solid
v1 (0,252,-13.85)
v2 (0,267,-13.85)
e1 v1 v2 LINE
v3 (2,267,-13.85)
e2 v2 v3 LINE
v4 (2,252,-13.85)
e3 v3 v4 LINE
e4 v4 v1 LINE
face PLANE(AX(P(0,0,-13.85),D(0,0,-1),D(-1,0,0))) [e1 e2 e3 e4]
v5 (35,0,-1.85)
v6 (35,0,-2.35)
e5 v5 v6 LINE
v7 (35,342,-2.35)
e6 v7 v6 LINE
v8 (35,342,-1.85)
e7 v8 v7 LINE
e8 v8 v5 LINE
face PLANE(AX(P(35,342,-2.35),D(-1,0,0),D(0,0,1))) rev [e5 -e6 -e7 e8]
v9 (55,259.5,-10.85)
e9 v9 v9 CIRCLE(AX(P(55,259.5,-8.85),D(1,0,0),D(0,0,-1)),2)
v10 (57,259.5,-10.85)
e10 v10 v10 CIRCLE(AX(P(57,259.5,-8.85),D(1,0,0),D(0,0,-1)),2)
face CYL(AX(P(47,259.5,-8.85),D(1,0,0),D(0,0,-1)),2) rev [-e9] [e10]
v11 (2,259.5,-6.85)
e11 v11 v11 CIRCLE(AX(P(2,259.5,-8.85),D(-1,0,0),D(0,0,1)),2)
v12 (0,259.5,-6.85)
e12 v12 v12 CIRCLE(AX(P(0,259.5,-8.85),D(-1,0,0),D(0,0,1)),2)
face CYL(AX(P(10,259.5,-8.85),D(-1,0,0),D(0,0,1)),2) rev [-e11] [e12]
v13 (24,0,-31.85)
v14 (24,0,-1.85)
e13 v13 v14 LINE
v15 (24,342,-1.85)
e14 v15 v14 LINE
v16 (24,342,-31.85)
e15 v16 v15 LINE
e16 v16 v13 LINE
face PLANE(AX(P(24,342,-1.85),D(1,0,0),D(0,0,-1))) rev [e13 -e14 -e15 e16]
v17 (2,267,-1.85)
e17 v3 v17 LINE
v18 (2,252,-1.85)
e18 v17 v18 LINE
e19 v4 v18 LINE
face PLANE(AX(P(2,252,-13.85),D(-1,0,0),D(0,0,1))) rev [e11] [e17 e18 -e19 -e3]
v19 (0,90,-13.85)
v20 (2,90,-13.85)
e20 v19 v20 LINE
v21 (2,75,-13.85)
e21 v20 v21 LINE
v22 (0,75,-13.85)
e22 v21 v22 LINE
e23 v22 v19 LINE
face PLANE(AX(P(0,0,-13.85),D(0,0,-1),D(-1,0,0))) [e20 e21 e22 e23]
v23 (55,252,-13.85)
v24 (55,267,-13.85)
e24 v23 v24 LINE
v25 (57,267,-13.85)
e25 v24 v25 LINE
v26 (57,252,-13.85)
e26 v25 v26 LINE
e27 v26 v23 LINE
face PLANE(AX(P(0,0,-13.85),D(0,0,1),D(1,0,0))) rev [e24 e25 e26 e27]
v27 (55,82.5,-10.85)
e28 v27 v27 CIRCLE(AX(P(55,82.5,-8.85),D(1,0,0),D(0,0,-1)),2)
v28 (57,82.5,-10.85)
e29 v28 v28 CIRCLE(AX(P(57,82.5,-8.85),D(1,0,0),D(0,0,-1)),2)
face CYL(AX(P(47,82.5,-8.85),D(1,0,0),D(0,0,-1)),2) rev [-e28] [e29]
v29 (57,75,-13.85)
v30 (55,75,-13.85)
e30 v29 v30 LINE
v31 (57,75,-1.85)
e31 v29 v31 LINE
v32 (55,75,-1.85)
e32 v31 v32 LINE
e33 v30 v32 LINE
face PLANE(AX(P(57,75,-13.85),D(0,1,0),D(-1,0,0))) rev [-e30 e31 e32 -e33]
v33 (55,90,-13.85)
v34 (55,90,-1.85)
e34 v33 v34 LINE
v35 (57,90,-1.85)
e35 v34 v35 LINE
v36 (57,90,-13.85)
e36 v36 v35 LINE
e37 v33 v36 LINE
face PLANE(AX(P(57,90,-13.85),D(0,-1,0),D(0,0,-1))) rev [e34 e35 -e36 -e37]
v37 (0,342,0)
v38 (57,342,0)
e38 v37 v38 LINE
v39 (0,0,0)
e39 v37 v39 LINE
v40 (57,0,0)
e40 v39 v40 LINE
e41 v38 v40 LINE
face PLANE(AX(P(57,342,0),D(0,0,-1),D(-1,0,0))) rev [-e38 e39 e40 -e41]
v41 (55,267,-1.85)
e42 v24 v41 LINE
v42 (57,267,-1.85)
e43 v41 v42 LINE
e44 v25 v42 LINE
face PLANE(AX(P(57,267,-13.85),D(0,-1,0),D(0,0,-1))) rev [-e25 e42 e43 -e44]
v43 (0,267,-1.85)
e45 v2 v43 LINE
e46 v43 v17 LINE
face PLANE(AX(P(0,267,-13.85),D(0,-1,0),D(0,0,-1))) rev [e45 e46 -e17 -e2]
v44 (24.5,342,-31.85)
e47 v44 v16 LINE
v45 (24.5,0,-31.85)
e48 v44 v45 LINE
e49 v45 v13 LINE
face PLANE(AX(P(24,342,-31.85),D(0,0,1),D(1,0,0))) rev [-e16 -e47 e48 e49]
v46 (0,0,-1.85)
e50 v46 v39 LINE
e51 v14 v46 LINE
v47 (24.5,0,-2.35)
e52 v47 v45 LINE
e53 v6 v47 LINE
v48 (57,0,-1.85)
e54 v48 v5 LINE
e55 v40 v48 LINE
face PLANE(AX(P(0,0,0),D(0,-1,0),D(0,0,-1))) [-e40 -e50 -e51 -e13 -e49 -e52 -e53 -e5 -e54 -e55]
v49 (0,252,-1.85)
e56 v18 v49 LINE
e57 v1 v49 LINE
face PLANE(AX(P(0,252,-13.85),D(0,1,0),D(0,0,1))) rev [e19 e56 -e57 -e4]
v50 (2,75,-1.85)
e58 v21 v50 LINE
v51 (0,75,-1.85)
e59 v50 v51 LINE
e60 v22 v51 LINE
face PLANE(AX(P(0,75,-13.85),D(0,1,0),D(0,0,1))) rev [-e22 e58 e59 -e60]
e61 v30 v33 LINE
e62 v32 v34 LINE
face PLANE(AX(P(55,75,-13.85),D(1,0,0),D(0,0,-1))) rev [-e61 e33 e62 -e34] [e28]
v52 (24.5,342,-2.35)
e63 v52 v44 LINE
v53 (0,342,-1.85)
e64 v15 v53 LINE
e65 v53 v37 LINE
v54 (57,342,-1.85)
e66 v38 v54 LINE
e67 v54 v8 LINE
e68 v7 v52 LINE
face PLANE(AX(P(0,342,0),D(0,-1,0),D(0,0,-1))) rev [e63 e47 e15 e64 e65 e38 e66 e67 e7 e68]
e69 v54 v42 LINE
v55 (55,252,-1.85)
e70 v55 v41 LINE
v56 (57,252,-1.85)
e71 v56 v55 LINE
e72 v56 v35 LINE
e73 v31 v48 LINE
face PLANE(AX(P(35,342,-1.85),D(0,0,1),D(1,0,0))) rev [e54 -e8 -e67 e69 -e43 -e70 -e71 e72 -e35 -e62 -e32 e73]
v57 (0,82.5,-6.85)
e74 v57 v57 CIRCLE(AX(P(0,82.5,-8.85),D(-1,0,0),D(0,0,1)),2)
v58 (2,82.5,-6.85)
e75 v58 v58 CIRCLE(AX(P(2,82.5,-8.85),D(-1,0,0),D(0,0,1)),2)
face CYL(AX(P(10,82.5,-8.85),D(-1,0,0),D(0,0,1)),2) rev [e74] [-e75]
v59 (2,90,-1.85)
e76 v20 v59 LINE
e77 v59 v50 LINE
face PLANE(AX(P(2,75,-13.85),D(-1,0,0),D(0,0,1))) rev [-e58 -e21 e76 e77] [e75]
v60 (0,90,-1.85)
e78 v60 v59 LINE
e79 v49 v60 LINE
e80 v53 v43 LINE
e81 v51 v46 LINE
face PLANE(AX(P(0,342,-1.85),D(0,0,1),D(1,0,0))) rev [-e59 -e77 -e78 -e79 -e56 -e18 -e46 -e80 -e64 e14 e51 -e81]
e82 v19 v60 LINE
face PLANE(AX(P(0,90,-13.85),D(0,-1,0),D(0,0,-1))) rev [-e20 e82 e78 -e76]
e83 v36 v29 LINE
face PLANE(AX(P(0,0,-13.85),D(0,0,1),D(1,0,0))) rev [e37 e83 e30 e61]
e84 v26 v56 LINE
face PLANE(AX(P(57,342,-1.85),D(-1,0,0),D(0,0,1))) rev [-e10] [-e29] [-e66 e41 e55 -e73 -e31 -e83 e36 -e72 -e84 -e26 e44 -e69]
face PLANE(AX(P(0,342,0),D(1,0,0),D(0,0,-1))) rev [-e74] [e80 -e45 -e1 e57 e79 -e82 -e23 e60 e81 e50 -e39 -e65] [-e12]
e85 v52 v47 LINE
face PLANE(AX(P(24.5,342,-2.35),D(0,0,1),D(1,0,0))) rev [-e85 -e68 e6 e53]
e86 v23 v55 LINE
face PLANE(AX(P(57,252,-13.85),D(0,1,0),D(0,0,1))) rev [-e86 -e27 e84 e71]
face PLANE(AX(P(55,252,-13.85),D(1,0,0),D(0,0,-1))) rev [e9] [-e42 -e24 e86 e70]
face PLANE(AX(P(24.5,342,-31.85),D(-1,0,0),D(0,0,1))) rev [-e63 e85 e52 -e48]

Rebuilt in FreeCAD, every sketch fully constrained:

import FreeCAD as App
import Part
import Sketcher

V = App.Vector
Q = App.Units.Quantity


def add_polygon(sketch, points):
    """Adds a closed chain of lines whose ends are joined by coincident constraints."""
    first, n = sketch.GeometryCount, len(points)
    for a, b in zip(points, points[1:] + points[:1]):
        sketch.addGeometry(Part.LineSegment(App.Vector(*a, 0), App.Vector(*b, 0)), False)
    for i in range(n):
        sketch.addConstraint(Sketcher.Constraint("Coincident", first + i, 2, first + (i + 1) % n, 1))

doc = App.newDocument("Part")
body = doc.addObject("PartDesign::Body", "Body")

# Sketch on XZ plane
sketch1 = body.newObject("Sketcher::SketchObject", "Sketch")
sketch1.AttachmentSupport = (doc.getObject("XZ_Plane"), [""])
sketch1.MapMode = "FlatFace"
add_polygon(sketch1, [(0, -1.9), (0, 0), (57, 0), (57, -1.9), (35, -1.9), (35, -2.4), (24.5, -2.4), (24.5, -31.9), (24, -31.9), (24, -1.9)])  # lines 0-9
sketch1.addConstraint([
    Sketcher.Constraint("Vertical", 0),
    Sketcher.Constraint("Horizontal", 1),
    Sketcher.Constraint("Vertical", 2),
    Sketcher.Constraint("Horizontal", 3),
    Sketcher.Constraint("Vertical", 4),
    Sketcher.Constraint("Horizontal", 5),
    Sketcher.Constraint("Vertical", 6),
    Sketcher.Constraint("Horizontal", 7),
    Sketcher.Constraint("Vertical", 8),
    Sketcher.Constraint("Horizontal", 9),
    Sketcher.Constraint("Coincident", 0, 2, -1, 1),
    Sketcher.Constraint("Horizontal", 3, 2, 8, 2),
    Sketcher.Constraint("Equal", 7, 4),
    Sketcher.Constraint("DistanceX", 1, 1, 1, 2, Q("57 mm")),
    Sketcher.Constraint("DistanceX", 3, 2, 3, 1, Q("22 mm")),
    Sketcher.Constraint("DistanceX", 9, 2, 9, 1, Q("24 mm")),
    Sketcher.Constraint("DistanceY", 8, 1, 8, 2, Q("30 mm")),
    Sketcher.Constraint("DistanceX", 5, 2, 5, 1, Q("10.5 mm")),
    Sketcher.Constraint("DistanceY", 0, 1, 0, 2, Q("1.85 mm")),
])
pad1 = body.newObject("PartDesign::Pad", "Pad")
pad1.Profile = sketch1
pad1.Length = 342
pad1.Reversed = True

# Sketch on XY plane
sketch2 = body.newObject("Sketcher::SketchObject", "Sketch001")
sketch2.AttachmentSupport = (doc.getObject("XY_Plane"), [""])
sketch2.MapMode = "FlatFace"
sketch2.AttachmentOffset = App.Placement(V(0, 0, -1.85), App.Rotation())
add_polygon(sketch2, [(57, 90), (57, 75), (55, 75), (55, 90)])  # lines 0-3
add_polygon(sketch2, [(57, 267), (57, 252), (55, 252), (55, 267)])  # lines 4-7
add_polygon(sketch2, [(2, 90), (2, 75), (0, 75), (0, 90)])  # lines 8-11
add_polygon(sketch2, [(2, 267), (2, 252), (0, 252), (0, 267)])  # lines 12-15
sketch2.addConstraint([
    Sketcher.Constraint("Vertical", 0),
    Sketcher.Constraint("Horizontal", 1),
    Sketcher.Constraint("Vertical", 2),
    Sketcher.Constraint("Horizontal", 3),
    Sketcher.Constraint("Vertical", 4),
    Sketcher.Constraint("Horizontal", 5),
    Sketcher.Constraint("Vertical", 6),
    Sketcher.Constraint("Horizontal", 7),
    Sketcher.Constraint("Vertical", 8),
    Sketcher.Constraint("Horizontal", 9),
    Sketcher.Constraint("Vertical", 10),
    Sketcher.Constraint("Horizontal", 11),
    Sketcher.Constraint("Vertical", 12),
    Sketcher.Constraint("Horizontal", 13),
    Sketcher.Constraint("Vertical", 14),
    Sketcher.Constraint("Horizontal", 15),
    Sketcher.Constraint("PointOnObject", 9, 2, -2),
    Sketcher.Constraint("PointOnObject", 13, 2, -2),
    Sketcher.Constraint("Horizontal", 1, 2, 8, 2),
    Sketcher.Constraint("Horizontal", 3, 2, 10, 2),
    Sketcher.Constraint("Horizontal", 5, 2, 12, 2),
    Sketcher.Constraint("Horizontal", 7, 2, 14, 2),
    Sketcher.Constraint("Vertical", 3, 2, 4, 2),
    Sketcher.Constraint("Vertical", 2, 2, 5, 2),
    Sketcher.Constraint("Vertical", 11, 2, 12, 2),
    Sketcher.Constraint("Equal", 7, 9),
    Sketcher.Constraint("Equal", 2, 4),
    Sketcher.Constraint("DistanceX", 1, 2, 1, 1, Q("2 mm")),
    Sketcher.Constraint("DistanceY", 0, 2, 0, 1, Q("15 mm")),
    Sketcher.Constraint("DistanceX", -1, 1, 0, 2, Q("57 mm")),
    Sketcher.Constraint("DistanceY", -1, 1, 0, 2, Q("75 mm")),
    Sketcher.Constraint("DistanceY", -1, 1, 4, 2, Q("252 mm")),
])
pad2 = body.newObject("PartDesign::Pad", "Pad001")
pad2.Profile = sketch2
pad2.Length = 12
pad2.Reversed = True

# Sketch on YZ plane
sketch3 = body.newObject("Sketcher::SketchObject", "Sketch002")
sketch3.AttachmentSupport = (doc.getObject("YZ_Plane"), [""])
sketch3.MapMode = "FlatFace"
sketch3.addGeometry([
    Part.Circle(V(82.5, -8.8, 0), V(0, 0, 1), 2),
    Part.Circle(V(259.5, -8.8, 0), V(0, 0, 1), 2),
], False)
sketch3.addConstraint([
    Sketcher.Constraint("Equal", 0, 1),
    Sketcher.Constraint("Horizontal", 0, 3, 1, 3),
    Sketcher.Constraint("Diameter", 0, Q("4 mm")),
    Sketcher.Constraint("DistanceX", 0, 3, 1, 3, Q("177 mm")),
    Sketcher.Constraint("DistanceX", -1, 1, 0, 3, Q("82.5 mm")),
    Sketcher.Constraint("DistanceY", 0, 3, -1, 1, Q("8.85 mm")),
])
pocket1 = body.newObject("PartDesign::Pocket", "Pocket")
pocket1.Profile = sketch3
pocket1.Length = 10
pocket1.Reversed = True

# Sketch on YZ plane
sketch4 = body.newObject("Sketcher::SketchObject", "Sketch003")
sketch4.AttachmentSupport = (doc.getObject("YZ_Plane"), [""])
sketch4.MapMode = "FlatFace"
sketch4.AttachmentOffset = App.Placement(V(0, 0, 57), App.Rotation())
sketch4.addGeometry([
    Part.Circle(V(259.5, -8.8, 0), V(0, 0, 1), 2),
    Part.Circle(V(82.5, -8.8, 0), V(0, 0, 1), 2),
], False)
sketch4.addConstraint([
    Sketcher.Constraint("Equal", 0, 1),
    Sketcher.Constraint("Horizontal", 0, 3, 1, 3),
    Sketcher.Constraint("Diameter", 0, Q("4 mm")),
    Sketcher.Constraint("DistanceX", 1, 3, 0, 3, Q("177 mm")),
    Sketcher.Constraint("DistanceX", -1, 1, 0, 3, Q("259.5 mm")),
    Sketcher.Constraint("DistanceY", 0, 3, -1, 1, Q("8.85 mm")),
])
pocket2 = body.newObject("PartDesign::Pocket", "Pocket001")
pocket2.Profile = sketch4
pocket2.Length = 10

doc.recompute()
